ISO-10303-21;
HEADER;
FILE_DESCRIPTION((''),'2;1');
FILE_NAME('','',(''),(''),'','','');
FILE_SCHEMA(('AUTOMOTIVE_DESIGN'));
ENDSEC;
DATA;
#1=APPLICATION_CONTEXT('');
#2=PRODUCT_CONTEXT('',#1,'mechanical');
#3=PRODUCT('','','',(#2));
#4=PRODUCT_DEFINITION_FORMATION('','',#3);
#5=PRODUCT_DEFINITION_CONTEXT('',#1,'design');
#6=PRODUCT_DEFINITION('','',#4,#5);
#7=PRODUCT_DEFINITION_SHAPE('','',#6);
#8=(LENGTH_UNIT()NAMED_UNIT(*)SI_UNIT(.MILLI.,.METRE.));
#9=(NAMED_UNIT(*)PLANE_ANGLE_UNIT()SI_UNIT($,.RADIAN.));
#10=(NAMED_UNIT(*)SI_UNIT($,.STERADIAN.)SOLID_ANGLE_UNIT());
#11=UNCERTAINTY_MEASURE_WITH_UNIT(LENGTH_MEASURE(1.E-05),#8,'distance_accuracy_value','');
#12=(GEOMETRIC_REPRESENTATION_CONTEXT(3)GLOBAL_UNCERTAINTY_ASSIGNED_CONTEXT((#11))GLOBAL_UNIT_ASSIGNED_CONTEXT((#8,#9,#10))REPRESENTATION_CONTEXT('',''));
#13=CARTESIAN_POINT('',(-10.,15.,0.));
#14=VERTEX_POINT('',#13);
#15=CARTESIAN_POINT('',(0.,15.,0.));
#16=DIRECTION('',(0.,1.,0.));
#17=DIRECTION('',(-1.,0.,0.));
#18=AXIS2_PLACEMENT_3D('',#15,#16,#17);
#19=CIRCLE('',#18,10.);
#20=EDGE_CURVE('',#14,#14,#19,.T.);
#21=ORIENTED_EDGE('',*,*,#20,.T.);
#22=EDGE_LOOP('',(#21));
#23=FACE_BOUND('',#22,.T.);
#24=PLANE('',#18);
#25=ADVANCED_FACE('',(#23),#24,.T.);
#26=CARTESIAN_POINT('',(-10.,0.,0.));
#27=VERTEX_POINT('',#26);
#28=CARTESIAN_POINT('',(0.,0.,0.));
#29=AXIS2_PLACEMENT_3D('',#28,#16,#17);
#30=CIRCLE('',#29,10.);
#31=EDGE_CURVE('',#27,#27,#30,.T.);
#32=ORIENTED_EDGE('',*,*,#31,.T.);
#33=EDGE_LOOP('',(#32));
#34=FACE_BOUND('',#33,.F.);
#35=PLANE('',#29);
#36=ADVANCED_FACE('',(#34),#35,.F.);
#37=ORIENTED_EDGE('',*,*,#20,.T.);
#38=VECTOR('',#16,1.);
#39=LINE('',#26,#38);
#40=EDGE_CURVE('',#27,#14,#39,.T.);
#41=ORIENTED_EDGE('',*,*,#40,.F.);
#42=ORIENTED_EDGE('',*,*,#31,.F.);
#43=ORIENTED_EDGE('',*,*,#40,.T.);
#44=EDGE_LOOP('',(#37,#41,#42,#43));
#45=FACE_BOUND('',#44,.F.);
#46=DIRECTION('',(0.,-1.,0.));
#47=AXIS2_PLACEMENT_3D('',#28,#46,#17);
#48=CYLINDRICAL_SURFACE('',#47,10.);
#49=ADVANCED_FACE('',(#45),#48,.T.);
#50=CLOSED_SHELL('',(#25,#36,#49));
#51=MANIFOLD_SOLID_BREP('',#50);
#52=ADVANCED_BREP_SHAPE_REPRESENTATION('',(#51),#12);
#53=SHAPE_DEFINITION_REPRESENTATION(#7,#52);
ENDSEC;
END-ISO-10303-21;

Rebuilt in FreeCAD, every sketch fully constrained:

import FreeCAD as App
import Part
import Sketcher

V = App.Vector
Q = App.Units.Quantity

doc = App.newDocument("Part")
body = doc.addObject("PartDesign::Body", "Body")

# Sketch on XZ plane
sketch1 = body.newObject("Sketcher::SketchObject", "Sketch")
sketch1.AttachmentSupport = (doc.getObject("XZ_Plane"), [""])
sketch1.MapMode = "FlatFace"
sketch1.addGeometry(Part.Circle(V(0, 0, 0), V(0, 0, 1), 10), False)
sketch1.addConstraint([
    Sketcher.Constraint("Coincident", 0, 3, -1, 1),
    Sketcher.Constraint("Diameter", 0, Q("20 mm")),
])
pad1 = body.newObject("PartDesign::Pad", "Pad")
pad1.Profile = sketch1
pad1.Length = 15
pad1.Reversed = True

doc.recompute()
